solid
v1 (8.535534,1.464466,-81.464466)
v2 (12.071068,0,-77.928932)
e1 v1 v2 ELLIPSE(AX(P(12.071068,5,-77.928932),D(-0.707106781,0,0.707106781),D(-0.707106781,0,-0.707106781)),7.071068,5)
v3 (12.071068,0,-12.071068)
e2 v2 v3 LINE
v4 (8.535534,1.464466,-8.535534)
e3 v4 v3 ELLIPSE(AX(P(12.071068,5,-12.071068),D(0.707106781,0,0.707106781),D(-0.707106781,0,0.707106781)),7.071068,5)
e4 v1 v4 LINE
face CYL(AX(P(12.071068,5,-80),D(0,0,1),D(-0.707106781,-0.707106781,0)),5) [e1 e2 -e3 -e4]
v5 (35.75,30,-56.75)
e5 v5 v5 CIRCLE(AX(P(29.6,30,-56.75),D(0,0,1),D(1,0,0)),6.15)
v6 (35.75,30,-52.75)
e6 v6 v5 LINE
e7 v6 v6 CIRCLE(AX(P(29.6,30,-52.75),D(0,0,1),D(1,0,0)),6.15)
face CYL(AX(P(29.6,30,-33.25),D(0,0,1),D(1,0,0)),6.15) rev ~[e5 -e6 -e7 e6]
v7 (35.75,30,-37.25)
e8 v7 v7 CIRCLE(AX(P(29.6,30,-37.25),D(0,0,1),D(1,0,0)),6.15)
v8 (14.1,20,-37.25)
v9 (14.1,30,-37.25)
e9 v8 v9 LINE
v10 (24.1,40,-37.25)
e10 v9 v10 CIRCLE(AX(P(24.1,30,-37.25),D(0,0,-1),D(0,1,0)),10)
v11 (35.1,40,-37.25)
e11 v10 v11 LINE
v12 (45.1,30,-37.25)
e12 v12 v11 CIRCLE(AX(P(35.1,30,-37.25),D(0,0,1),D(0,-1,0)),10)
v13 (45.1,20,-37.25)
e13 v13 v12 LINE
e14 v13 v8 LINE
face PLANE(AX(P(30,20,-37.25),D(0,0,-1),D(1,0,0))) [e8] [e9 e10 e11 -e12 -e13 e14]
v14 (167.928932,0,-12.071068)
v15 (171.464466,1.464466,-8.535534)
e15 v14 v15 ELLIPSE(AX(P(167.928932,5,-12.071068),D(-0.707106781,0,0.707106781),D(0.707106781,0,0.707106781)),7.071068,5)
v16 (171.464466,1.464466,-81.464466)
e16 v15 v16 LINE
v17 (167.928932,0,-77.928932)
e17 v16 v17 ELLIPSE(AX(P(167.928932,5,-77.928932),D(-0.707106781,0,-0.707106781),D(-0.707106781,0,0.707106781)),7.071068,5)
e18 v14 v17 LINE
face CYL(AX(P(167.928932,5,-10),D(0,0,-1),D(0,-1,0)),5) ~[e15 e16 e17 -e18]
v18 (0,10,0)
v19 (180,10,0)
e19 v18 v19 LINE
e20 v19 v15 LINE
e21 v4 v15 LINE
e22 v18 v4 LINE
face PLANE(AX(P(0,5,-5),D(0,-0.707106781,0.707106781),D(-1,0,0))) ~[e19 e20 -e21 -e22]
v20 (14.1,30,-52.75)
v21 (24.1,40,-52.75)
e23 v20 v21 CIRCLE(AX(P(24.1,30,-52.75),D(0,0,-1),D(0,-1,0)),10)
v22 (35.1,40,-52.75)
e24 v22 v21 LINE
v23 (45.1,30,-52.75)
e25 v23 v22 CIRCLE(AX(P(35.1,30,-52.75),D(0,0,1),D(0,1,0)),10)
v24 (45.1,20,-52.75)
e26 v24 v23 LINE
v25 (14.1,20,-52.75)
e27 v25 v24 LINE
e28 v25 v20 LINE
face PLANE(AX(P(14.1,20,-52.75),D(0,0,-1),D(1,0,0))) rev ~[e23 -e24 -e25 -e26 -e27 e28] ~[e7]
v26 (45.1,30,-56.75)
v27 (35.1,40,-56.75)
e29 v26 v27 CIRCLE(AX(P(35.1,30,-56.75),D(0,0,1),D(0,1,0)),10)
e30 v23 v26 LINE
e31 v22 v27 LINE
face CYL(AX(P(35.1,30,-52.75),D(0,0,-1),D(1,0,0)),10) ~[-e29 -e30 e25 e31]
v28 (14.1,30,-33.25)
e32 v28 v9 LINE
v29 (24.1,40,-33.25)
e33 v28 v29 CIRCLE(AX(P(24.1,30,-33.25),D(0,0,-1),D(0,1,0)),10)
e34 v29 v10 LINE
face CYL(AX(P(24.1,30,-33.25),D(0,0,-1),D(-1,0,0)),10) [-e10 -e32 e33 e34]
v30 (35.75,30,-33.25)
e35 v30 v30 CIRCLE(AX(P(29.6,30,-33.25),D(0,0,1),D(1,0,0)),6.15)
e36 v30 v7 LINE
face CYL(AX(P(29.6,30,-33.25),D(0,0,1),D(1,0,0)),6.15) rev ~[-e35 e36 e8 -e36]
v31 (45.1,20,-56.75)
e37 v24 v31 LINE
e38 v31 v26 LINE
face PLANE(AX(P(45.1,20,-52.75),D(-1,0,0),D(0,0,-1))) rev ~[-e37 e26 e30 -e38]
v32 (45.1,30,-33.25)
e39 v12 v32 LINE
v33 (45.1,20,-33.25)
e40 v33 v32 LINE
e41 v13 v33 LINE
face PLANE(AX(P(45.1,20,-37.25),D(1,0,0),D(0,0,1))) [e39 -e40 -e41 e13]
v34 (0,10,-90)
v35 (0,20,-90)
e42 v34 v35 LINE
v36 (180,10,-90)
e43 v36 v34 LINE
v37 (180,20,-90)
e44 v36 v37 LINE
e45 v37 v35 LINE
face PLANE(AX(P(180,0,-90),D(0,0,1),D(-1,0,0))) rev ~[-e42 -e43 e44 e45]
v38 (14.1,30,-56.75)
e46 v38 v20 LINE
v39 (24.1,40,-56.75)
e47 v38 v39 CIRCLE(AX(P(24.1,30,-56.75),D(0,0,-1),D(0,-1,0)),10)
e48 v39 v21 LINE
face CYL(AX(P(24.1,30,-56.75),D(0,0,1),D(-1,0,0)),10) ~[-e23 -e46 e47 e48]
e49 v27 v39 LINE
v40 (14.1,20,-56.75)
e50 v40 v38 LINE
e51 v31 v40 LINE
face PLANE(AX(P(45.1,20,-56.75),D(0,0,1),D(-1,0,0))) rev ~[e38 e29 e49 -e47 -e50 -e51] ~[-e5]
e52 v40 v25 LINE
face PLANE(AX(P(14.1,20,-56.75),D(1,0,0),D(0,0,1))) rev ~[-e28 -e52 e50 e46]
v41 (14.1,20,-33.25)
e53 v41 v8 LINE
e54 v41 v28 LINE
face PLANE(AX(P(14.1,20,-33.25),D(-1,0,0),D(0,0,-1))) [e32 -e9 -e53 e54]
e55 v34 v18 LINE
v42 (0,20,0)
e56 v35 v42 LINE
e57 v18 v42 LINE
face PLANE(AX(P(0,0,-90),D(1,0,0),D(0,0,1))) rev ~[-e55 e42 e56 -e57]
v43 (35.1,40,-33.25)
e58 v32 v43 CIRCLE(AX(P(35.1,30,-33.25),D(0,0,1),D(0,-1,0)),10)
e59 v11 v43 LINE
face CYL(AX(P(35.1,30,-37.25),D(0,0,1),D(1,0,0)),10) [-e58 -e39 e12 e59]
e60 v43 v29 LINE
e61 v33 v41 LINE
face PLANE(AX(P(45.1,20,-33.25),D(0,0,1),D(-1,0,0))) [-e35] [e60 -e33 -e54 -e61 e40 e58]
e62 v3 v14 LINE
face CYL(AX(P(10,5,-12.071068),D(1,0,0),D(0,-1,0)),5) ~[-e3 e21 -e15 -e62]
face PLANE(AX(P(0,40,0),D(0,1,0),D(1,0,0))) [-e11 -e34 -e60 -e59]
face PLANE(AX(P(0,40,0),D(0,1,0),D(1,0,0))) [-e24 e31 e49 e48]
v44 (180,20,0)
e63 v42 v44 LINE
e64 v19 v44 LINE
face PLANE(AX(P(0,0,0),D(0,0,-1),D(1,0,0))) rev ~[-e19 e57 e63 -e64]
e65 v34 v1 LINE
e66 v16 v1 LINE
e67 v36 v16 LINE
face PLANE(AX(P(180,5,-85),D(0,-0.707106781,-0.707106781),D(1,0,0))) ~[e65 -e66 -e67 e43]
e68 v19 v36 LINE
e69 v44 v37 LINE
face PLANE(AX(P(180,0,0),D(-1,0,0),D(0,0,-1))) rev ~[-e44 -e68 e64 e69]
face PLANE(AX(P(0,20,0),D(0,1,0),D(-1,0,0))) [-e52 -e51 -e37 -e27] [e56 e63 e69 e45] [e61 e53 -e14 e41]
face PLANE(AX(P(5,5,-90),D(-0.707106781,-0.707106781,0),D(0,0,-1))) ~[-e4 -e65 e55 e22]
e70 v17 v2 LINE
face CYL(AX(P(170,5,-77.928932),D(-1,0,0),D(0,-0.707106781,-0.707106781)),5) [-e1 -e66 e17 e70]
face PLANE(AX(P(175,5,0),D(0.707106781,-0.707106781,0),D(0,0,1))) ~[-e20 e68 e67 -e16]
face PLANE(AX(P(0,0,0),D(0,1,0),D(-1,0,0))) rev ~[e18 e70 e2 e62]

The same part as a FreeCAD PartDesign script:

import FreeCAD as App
import Part
import Sketcher

V = App.Vector


def edges_at(feature, points):
    """Names of the edges that pass closest to the given points."""
    edges = feature.Shape.Edges
    near = lambda p: min(range(len(edges)), key=lambda i: edges[i].distToShape(Part.Vertex(*p))[0])
    return sorted({f"Edge{near(p) + 1}" for p in points})

doc = App.newDocument("Part")
body = doc.addObject("PartDesign::Body", "Body")

# Sketch on XZ plane
sketch1 = body.newObject("Sketcher::SketchObject", "Sketch")
sketch1.AttachmentSupport = (doc.getObject("XZ_Plane"), [""])
sketch1.MapMode = "FlatFace"
sketch1.addGeometry(Part.LineSegment(V(0, -90, 0), V(0, 0, 0)), False)
sketch1.addGeometry(Part.LineSegment(V(0, 0, 0), V(180, 0, 0)), False)
sketch1.addGeometry(Part.LineSegment(V(180, 0, 0), V(180, -90, 0)), False)
sketch1.addGeometry(Part.LineSegment(V(180, -90, 0), V(0, -90, 0)), False)
sketch1.addConstraint(Sketcher.Constraint("Coincident", 0, 2, 1, 1))
sketch1.addConstraint(Sketcher.Constraint("Coincident", 1, 2, 2, 1))
sketch1.addConstraint(Sketcher.Constraint("Coincident", 2, 2, 3, 1))
sketch1.addConstraint(Sketcher.Constraint("Coincident", 3, 2, 0, 1))
sketch1.addConstraint(Sketcher.Constraint("Vertical", 0))
sketch1.addConstraint(Sketcher.Constraint("Horizontal", 1))
sketch1.addConstraint(Sketcher.Constraint("Vertical", 2))
sketch1.addConstraint(Sketcher.Constraint("Horizontal", 3))
sketch1.addConstraint(Sketcher.Constraint("Coincident", 0, 2, -1, 1))
sketch1.addConstraint(Sketcher.Constraint("DistanceX", 1, 1, 1, 2, 180.0))
sketch1.addConstraint(Sketcher.Constraint("DistanceY", 0, 1, 0, 2, 90.0))
pad1 = body.newObject("PartDesign::Pad", "Pad")
pad1.Profile = sketch1
pad1.Length = 20
pad1.Reversed = True
doc.recompute()

chamfer = body.newObject("PartDesign::Chamfer", "Chamfer")
chamfer.Base = (pad1, edges_at(pad1, [
    (90, 0, 0),
    (180, 0, -45),
    (90, 0, -90),
    (0, 0, -45),
]))
chamfer.Size = 10
doc.recompute()

fillet = body.newObject("PartDesign::Fillet", "Fillet")
fillet.Base = (chamfer, edges_at(chamfer, [
    (90, 0, -80),
    (10, 0, -45),
    (90, 0, -10),
    (170, 0, -45),
]))
fillet.Radius = 5

# Sketch on XZ plane
sketch2 = body.newObject("Sketcher::SketchObject", "Sketch001")
sketch2.AttachmentSupport = (doc.getObject("XZ_Plane"), [""])
sketch2.MapMode = "FlatFace"
sketch2.AttachmentOffset = App.Placement(V(0, 0, -20), App.Rotation())
sketch2.addGeometry(Part.LineSegment(V(14.1, -52.8, 0), V(45.1, -52.8, 0)), False)
sketch2.addGeometry(Part.LineSegment(V(45.1, -52.8, 0), V(45.1, -56.8, 0)), False)
sketch2.addGeometry(Part.LineSegment(V(45.1, -56.8, 0), V(14.1, -56.8, 0)), False)
sketch2.addGeometry(Part.LineSegment(V(14.1, -56.8, 0), V(14.1, -52.8, 0)), False)
sketch2.addGeometry(Part.LineSegment(V(45.1, -37.2, 0), V(14.1, -37.2, 0)), False)
sketch2.addGeometry(Part.LineSegment(V(14.1, -37.2, 0), V(14.1, -33.2, 0)), False)
sketch2.addGeometry(Part.LineSegment(V(14.1, -33.2, 0), V(45.1, -33.2, 0)), False)
sketch2.addGeometry(Part.LineSegment(V(45.1, -33.2, 0), V(45.1, -37.2, 0)), False)
sketch2.addConstraint(Sketcher.Constraint("Coincident", 0, 2, 1, 1))
sketch2.addConstraint(Sketcher.Constraint("Coincident", 1, 2, 2, 1))
sketch2.addConstraint(Sketcher.Constraint("Coincident", 2, 2, 3, 1))
sketch2.addConstraint(Sketcher.Constraint("Coincident", 3, 2, 0, 1))
sketch2.addConstraint(Sketcher.Constraint("Coincident", 4, 2, 5, 1))
sketch2.addConstraint(Sketcher.Constraint("Coincident", 5, 2, 6, 1))
sketch2.addConstraint(Sketcher.Constraint("Coincident", 6, 2, 7, 1))
sketch2.addConstraint(Sketcher.Constraint("Coincident", 7, 2, 4, 1))
sketch2.addConstraint(Sketcher.Constraint("Horizontal", 0))
sketch2.addConstraint(Sketcher.Constraint("Vertical", 1))
sketch2.addConstraint(Sketcher.Constraint("Horizontal", 2))
sketch2.addConstraint(Sketcher.Constraint("Vertical", 3))
sketch2.addConstraint(Sketcher.Constraint("Horizontal", 4))
sketch2.addConstraint(Sketcher.Constraint("Vertical", 5))
sketch2.addConstraint(Sketcher.Constraint("Horizontal", 6))
sketch2.addConstraint(Sketcher.Constraint("Vertical", 7))
sketch2.addConstraint(Sketcher.Constraint("Vertical", 3, 2, 4, 2))
sketch2.addConstraint(Sketcher.Constraint("Vertical", 1, 2, 6, 2))
sketch2.addConstraint(Sketcher.Constraint("Equal", 3, 5))
sketch2.addConstraint(Sketcher.Constraint("DistanceX", 0, 1, 0, 2, 31.0))
sketch2.addConstraint(Sketcher.Constraint("DistanceY", 1, 2, 1, 1, 4.0))
sketch2.addConstraint(Sketcher.Constraint("DistanceX", -1, 1, 0, 2, 45.1))
sketch2.addConstraint(Sketcher.Constraint("DistanceY", 3, 2, 4, 2, 15.5))
sketch2.addConstraint(Sketcher.Constraint("DistanceY", 0, 2, -1, 1, 52.75))
pad2 = body.newObject("PartDesign::Pad", "Pad001")
pad2.Profile = sketch2
pad2.Length = 20
pad2.Reversed = True
doc.recompute()

fillet2 = body.newObject("PartDesign::Fillet", "Fillet001")
fillet2.Base = (pad2, edges_at(pad2, [
    (45.1, 40, -35.25),
    (45.1, 40, -54.75),
    (14.1, 40, -54.75),
    (14.1, 40, -35.25),
]))
fillet2.Radius = 10

# Sketch on XY plane
sketch3 = body.newObject("Sketcher::SketchObject", "Sketch002")
sketch3.AttachmentSupport = (doc.getObject("XY_Plane"), [""])
sketch3.MapMode = "FlatFace"
sketch3.AttachmentOffset = App.Placement(V(0, 0, -33.25), App.Rotation())
sketch3.addGeometry(Part.Circle(V(30, 30, 0), V(0, 0, 1), 6), False)
sketch3.addConstraint(Sketcher.Constraint("Diameter", 0, 12.3))
sketch3.addConstraint(Sketcher.Constraint("DistanceY", -1, 1, 0, 3, 30.0))
sketch3.addConstraint(Sketcher.Constraint("DistanceX", -1, 1, 0, 3, 29.6))
pocket1 = body.newObject("PartDesign::Pocket", "Pocket")
pocket1.Profile = sketch3
pocket1.Length = 24

doc.recompute()
